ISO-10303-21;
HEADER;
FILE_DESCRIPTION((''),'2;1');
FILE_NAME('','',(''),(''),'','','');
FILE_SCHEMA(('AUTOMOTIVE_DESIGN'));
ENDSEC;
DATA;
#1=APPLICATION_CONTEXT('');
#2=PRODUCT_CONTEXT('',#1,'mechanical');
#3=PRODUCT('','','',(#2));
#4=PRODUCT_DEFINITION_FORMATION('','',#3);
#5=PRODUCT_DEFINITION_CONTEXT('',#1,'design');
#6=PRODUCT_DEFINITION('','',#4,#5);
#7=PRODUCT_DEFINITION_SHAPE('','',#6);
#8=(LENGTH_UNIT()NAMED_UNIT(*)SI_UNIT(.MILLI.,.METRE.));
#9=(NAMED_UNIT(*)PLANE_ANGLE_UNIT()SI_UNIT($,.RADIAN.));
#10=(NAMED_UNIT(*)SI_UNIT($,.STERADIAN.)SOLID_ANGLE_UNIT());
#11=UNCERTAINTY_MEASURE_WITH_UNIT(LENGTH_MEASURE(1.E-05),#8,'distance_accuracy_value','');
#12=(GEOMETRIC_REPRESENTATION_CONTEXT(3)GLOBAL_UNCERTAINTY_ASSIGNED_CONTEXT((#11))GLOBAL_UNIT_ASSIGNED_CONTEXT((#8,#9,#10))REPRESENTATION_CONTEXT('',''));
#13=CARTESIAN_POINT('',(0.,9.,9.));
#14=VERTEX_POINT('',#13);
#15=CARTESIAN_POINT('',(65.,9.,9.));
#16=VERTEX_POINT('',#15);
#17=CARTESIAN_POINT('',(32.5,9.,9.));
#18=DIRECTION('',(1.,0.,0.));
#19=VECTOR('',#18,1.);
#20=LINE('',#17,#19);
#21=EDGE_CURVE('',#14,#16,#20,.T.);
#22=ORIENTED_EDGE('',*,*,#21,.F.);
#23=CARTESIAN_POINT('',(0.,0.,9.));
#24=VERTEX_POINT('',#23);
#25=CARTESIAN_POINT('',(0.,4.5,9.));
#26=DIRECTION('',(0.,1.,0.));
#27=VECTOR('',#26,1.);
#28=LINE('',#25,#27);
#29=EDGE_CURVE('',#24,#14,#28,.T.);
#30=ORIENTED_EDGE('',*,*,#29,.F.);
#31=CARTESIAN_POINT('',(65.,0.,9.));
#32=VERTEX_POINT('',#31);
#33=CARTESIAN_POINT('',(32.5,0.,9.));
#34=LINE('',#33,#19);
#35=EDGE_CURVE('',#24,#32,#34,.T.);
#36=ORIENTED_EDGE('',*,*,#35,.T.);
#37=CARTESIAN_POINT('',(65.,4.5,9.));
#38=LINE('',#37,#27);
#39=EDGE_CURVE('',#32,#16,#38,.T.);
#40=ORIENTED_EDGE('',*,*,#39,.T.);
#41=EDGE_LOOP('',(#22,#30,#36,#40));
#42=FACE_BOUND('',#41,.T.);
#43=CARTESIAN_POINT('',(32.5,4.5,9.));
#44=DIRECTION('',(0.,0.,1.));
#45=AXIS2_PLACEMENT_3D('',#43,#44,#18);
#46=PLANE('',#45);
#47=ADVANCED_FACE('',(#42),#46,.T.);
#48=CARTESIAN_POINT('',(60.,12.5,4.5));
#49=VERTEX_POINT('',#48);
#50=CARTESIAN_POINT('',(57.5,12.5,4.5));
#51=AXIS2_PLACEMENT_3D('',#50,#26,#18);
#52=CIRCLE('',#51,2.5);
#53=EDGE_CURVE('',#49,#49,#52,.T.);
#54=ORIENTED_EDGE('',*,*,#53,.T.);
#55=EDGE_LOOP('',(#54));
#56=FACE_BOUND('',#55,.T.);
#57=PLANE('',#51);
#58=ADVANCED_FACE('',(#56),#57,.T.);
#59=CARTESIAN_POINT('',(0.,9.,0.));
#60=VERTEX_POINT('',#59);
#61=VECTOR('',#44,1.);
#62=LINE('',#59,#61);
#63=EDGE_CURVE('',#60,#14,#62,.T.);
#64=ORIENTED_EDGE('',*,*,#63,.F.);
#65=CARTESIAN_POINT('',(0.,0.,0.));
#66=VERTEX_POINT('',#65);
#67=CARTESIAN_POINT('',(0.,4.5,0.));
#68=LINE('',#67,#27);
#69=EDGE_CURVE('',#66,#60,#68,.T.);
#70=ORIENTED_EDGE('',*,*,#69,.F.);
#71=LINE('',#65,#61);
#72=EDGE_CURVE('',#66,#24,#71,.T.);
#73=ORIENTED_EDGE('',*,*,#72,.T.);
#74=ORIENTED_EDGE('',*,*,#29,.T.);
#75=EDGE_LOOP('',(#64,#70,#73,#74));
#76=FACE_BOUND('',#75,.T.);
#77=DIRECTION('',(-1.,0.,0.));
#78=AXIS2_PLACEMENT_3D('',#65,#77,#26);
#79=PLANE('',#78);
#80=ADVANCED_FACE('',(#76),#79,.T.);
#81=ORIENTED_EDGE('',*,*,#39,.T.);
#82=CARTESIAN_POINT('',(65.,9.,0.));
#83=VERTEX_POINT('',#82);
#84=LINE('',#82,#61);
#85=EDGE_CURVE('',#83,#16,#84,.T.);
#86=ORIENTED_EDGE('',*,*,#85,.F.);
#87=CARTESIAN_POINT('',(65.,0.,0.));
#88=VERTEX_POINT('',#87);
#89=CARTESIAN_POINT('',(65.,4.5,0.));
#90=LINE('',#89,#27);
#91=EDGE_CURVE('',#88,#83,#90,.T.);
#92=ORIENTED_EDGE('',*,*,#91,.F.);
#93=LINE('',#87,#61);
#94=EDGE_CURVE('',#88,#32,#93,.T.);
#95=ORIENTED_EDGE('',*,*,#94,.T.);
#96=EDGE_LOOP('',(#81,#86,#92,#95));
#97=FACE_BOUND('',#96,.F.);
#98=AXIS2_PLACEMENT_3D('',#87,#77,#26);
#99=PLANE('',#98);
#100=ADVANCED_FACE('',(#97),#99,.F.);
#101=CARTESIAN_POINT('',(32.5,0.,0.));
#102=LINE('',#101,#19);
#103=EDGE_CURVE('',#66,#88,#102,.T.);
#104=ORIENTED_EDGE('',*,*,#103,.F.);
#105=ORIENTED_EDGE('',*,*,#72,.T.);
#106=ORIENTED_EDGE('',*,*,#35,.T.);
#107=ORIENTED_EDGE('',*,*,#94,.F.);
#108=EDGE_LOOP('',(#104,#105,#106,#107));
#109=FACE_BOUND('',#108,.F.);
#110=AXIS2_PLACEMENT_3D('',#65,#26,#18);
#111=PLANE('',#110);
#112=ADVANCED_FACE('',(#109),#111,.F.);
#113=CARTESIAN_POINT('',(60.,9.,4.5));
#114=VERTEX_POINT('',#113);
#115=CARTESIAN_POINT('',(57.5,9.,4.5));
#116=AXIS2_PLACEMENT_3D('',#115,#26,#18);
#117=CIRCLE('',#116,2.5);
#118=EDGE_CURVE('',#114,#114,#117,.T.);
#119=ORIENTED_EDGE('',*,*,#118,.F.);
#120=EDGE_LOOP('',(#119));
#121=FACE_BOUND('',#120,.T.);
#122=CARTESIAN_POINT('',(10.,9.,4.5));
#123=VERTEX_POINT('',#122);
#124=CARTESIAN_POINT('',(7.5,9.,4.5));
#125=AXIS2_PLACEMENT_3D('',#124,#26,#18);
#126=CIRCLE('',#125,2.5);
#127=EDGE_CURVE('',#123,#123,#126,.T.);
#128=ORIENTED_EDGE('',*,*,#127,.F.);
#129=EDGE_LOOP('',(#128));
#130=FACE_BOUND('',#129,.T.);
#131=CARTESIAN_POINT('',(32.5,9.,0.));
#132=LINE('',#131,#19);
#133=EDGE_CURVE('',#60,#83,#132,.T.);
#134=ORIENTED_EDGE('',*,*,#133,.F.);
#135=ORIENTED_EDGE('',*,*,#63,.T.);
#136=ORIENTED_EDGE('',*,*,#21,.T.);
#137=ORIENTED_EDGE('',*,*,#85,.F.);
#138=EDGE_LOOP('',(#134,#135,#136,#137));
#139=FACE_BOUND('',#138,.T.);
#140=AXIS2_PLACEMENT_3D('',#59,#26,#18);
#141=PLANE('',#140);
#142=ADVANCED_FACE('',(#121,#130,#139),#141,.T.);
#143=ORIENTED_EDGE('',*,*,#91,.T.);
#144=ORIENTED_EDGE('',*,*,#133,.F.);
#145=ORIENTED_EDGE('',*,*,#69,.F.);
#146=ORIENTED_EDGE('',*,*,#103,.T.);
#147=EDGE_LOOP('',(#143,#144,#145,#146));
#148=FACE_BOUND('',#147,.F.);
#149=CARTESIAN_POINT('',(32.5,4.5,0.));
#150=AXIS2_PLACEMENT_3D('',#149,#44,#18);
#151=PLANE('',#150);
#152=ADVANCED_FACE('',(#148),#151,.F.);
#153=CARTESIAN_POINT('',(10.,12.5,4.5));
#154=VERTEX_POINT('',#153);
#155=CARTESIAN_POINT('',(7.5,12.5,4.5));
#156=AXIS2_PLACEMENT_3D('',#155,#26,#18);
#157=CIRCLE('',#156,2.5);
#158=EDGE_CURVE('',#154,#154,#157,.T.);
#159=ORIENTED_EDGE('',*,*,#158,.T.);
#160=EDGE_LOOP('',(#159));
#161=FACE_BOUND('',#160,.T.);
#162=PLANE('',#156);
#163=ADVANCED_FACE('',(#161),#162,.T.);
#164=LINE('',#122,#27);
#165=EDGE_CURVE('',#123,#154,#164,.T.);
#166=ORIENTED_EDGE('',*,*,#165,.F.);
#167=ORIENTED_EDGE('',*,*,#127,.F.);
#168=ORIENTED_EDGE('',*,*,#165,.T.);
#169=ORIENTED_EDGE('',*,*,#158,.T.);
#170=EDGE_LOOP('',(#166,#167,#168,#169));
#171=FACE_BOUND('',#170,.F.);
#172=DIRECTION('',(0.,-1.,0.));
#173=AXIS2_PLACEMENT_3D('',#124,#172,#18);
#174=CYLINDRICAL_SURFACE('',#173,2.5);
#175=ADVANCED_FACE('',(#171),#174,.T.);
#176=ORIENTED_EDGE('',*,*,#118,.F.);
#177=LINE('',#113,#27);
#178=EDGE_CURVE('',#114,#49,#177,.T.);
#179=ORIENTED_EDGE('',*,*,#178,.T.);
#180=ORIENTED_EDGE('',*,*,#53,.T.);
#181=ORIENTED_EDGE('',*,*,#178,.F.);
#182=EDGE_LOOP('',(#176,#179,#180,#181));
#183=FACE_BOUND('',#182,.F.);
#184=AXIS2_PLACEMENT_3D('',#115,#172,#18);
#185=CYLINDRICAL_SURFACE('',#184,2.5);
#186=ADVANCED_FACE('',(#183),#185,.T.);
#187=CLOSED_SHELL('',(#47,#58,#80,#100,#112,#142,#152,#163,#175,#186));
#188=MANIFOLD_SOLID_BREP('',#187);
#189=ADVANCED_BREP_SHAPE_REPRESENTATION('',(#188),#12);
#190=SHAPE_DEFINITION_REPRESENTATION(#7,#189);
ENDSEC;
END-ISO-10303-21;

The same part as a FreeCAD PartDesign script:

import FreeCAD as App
import Part
import Sketcher
from FreeCAD import Vector

doc = App.newDocument("Part")
params = doc.addObject("Spreadsheet::Sheet", "Params")
for row, (alias, value) in enumerate([
    ("sketch1_width", "65 mm"),
    ("sketch1_height", "9 mm"),
    ("pad1_length", "9 mm"),
    ("sketch2_diameter", "5 mm"),
    ("pad2_length", "3.5 mm"),
], start=1):
    params.set(f"A{row}", alias)
    params.set(f"B{row}", "=" + value)
    params.setAlias(f"B{row}", alias)

body = doc.addObject("PartDesign::Body", "Body")

sketch1 = body.newObject("Sketcher::SketchObject", "Sketch")
sketch1.AttachmentSupport = (doc.getObject("XY_Plane"), [""])
sketch1.MapMode = "FlatFace"
sketch1.addGeometry([
    Part.LineSegment(Vector(0, 9, 0), Vector(0, 0, 0)),
    Part.LineSegment(Vector(0, 0, 0), Vector(65, 0, 0)),
    Part.LineSegment(Vector(65, 0, 0), Vector(65, 9, 0)),
    Part.LineSegment(Vector(65, 9, 0), Vector(0, 9, 0)),
], False)
sketch1.addConstraint([
    Sketcher.Constraint("Coincident", 0, 2, 1, 1),
    Sketcher.Constraint("Coincident", 1, 2, 2, 1),
    Sketcher.Constraint("Coincident", 2, 2, 3, 1),
    Sketcher.Constraint("Coincident", 3, 2, 0, 1),
    Sketcher.Constraint("Vertical", 0),
    Sketcher.Constraint("Horizontal", 1),
    Sketcher.Constraint("Vertical", 2),
    Sketcher.Constraint("Horizontal", 3),
    Sketcher.Constraint("Coincident", 0, 2, -1, 1),
    Sketcher.Constraint("DistanceX", 1, 1, 1, 2, 65.0),
    Sketcher.Constraint("DistanceY", 0, 2, 0, 1, 9.0),
])
sketch1.setExpression("Constraints[9]", "Params.sketch1_width")
sketch1.setExpression("Constraints[10]", "Params.sketch1_height")
pad1 = body.newObject("PartDesign::Pad", "Pad")
pad1.Profile = sketch1
pad1.setExpression("Length", "Params.pad1_length")

sketch2 = body.newObject("Sketcher::SketchObject", "Sketch001")
sketch2.AttachmentSupport = (doc.getObject("XZ_Plane"), [""])
sketch2.MapMode = "FlatFace"
sketch2.AttachmentOffset = App.Placement(Vector(0, 0, -9), App.Rotation())
sketch2.addGeometry([
    Part.Circle(Vector(57.5, 4.5, 0), Vector(0, 0, 1), 2.5),
    Part.Circle(Vector(7.5, 4.5, 0), Vector(0, 0, 1), 2.5),
], False)
sketch2.addConstraint([
    Sketcher.Constraint("Equal", 0, 1),
    Sketcher.Constraint("Horizontal", 0, 3, 1, 3),
    Sketcher.Constraint("Diameter", 0, 5.0),
    Sketcher.Constraint("DistanceX", 1, 3, 0, 3, 50.0),
    Sketcher.Constraint("DistanceX", -1, 1, 0, 3, 57.5),
    Sketcher.Constraint("DistanceY", -1, 1, 0, 3, 4.5),
])
sketch2.setExpression("Constraints[2]", "Params.sketch2_diameter")
pad2 = body.newObject("PartDesign::Pad", "Pad001")
pad2.Profile = sketch2
pad2.setExpression("Length", "Params.pad2_length")
pad2.Reversed = True

doc.recompute()
